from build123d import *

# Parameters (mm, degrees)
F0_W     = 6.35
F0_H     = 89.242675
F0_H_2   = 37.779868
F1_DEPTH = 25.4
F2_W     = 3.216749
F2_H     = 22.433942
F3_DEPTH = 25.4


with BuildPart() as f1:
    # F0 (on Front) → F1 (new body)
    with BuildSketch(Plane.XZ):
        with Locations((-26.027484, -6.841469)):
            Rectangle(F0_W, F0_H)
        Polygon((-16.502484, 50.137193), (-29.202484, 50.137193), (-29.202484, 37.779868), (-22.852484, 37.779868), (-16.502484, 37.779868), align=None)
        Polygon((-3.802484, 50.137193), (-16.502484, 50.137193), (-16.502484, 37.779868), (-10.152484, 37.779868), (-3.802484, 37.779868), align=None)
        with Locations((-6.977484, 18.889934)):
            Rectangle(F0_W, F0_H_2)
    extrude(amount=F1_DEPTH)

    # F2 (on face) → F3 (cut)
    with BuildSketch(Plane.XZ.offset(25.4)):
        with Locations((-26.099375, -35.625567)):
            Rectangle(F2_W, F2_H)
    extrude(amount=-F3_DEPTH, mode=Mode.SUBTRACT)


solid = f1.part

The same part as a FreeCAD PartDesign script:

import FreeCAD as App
import Part
import Sketcher
from FreeCAD import Vector
Q = App.Units.Quantity

doc = App.newDocument("Part")
body = doc.addObject("PartDesign::Body", "Body")

sketch1 = body.newObject("Sketcher::SketchObject", "Sketch")
sketch1.AttachmentSupport = (doc.getObject("XZ_Plane"), [""])
sketch1.MapMode = "FlatFace"
sketch1.addGeometry([
    Part.LineSegment(Vector(-29.202484, -51.462806, 0), Vector(-22.852484, -51.462806, 0)),
    Part.LineSegment(Vector(-22.852484, -51.462806, 0), Vector(-22.852484, 37.779868, 0)),
    Part.LineSegment(Vector(-22.852484, 37.779868, 0), Vector(-10.152484, 37.779868, 0)),
    Part.LineSegment(Vector(-10.152484, 37.779868, 0), Vector(-10.152484, 0, 0)),
    Part.LineSegment(Vector(-10.152484, 0, 0), Vector(-3.802484, 0, 0)),
    Part.LineSegment(Vector(-3.802484, 0, 0), Vector(-3.802484, 50.137193, 0)),
    Part.LineSegment(Vector(-3.802484, 50.137193, 0), Vector(-29.202484, 50.137193, 0)),
    Part.LineSegment(Vector(-29.202484, 50.137193, 0), Vector(-29.202484, -51.462806, 0)),
], False)
sketch1.addConstraint([
    Sketcher.Constraint("Coincident", 0, 2, 1, 1),
    Sketcher.Constraint("Coincident", 1, 2, 2, 1),
    Sketcher.Constraint("Coincident", 2, 2, 3, 1),
    Sketcher.Constraint("Coincident", 3, 2, 4, 1),
    Sketcher.Constraint("Coincident", 4, 2, 5, 1),
    Sketcher.Constraint("Coincident", 5, 2, 6, 1),
    Sketcher.Constraint("Coincident", 6, 2, 7, 1),
    Sketcher.Constraint("Coincident", 7, 2, 0, 1),
    Sketcher.Constraint("Horizontal", 0),
    Sketcher.Constraint("Vertical", 1),
    Sketcher.Constraint("Horizontal", 2),
    Sketcher.Constraint("Vertical", 3),
    Sketcher.Constraint("Horizontal", 4),
    Sketcher.Constraint("Vertical", 5),
    Sketcher.Constraint("Horizontal", 6),
    Sketcher.Constraint("Vertical", 7),
    Sketcher.Constraint("PointOnObject", 3, 2, -1),
    Sketcher.Constraint("Equal", 0, 4),
    Sketcher.Constraint("DistanceX", 6, 2, 6, 1, Q("1 in")),
    Sketcher.Constraint("DistanceY", 7, 2, 7, 1, Q("4 in")),
    Sketcher.Constraint("DistanceX", 2, 1, 2, 2, Q("0.5 in")),
    Sketcher.Constraint("DistanceY", 1, 1, 1, 2, Q("89.242674 mm")),
    Sketcher.Constraint("DistanceY", 3, 2, 3, 1, Q("37.779868 mm")),
    Sketcher.Constraint("DistanceX", 0, 2, -1, 1, Q("22.852484 mm")),
])
pad1 = body.newObject("PartDesign::Pad", "Pad")
pad1.Profile = sketch1
pad1.Length = Q("1 in")

sketch2 = body.newObject("Sketcher::SketchObject", "Sketch001")
sketch2.AttachmentSupport = (doc.getObject("XZ_Plane"), [""])
sketch2.MapMode = "FlatFace"
sketch2.AttachmentOffset = App.Placement(Vector(0, 0, 1 * 25.4), App.Rotation())
sketch2.addGeometry([
    Part.LineSegment(Vector(-27.707749, -24.408596, 0), Vector(-27.707749, -46.842538, 0)),
    Part.LineSegment(Vector(-27.707749, -46.842538, 0), Vector(-24.491, -46.842538, 0)),
    Part.LineSegment(Vector(-24.491, -46.842538, 0), Vector(-24.491, -24.408596, 0)),
    Part.LineSegment(Vector(-24.491, -24.408596, 0), Vector(-27.707749, -24.408596, 0)),
], False)
sketch2.addConstraint([
    Sketcher.Constraint("Coincident", 0, 2, 1, 1),
    Sketcher.Constraint("Coincident", 1, 2, 2, 1),
    Sketcher.Constraint("Coincident", 2, 2, 3, 1),
    Sketcher.Constraint("Coincident", 3, 2, 0, 1),
    Sketcher.Constraint("Vertical", 0),
    Sketcher.Constraint("Horizontal", 1),
    Sketcher.Constraint("Vertical", 2),
    Sketcher.Constraint("Horizontal", 3),
    Sketcher.Constraint("DistanceX", 1, 1, 1, 2, Q("3.216749 mm")),
    Sketcher.Constraint("DistanceY", 0, 2, 0, 1, Q("22.433942 mm")),
    Sketcher.Constraint("DistanceX", 1, 2, -1, 1, Q("24.491 mm")),
    Sketcher.Constraint("DistanceY", 0, 2, -1, 1, Q("46.842538 mm")),
])
pocket1 = body.newObject("PartDesign::Pocket", "Pocket")
pocket1.Profile = sketch2
pocket1.Length = Q("1 in")

doc.recompute()
